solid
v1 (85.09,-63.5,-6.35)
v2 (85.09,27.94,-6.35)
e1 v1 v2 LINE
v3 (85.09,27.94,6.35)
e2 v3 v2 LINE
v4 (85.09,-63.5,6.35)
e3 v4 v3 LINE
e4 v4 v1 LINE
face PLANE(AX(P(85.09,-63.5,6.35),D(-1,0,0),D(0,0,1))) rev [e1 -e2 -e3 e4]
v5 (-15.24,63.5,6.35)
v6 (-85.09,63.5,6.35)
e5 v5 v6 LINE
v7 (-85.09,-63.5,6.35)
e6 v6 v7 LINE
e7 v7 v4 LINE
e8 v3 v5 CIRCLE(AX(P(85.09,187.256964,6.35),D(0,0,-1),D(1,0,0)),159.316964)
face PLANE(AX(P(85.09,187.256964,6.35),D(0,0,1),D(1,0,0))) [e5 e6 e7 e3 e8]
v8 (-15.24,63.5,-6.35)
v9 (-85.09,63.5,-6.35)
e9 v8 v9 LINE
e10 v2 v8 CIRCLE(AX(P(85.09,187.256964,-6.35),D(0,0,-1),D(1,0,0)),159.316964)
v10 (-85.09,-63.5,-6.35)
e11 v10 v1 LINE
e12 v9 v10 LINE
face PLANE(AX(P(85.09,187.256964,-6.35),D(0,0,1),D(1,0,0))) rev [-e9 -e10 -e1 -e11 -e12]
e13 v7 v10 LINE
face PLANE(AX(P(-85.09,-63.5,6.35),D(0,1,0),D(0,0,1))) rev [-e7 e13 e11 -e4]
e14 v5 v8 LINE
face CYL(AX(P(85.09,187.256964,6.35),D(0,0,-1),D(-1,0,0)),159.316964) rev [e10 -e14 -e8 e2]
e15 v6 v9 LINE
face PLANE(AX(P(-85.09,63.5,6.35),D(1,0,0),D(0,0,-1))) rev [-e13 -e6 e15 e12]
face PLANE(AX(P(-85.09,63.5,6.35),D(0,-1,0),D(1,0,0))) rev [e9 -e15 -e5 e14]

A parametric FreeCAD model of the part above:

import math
import FreeCAD as App
import Part
import Sketcher

V = App.Vector
Q = App.Units.Quantity

doc = App.newDocument("Part")
body = doc.addObject("PartDesign::Body", "Body")

# Sketch on XY plane
sketch1 = body.newObject("Sketcher::SketchObject", "Sketch")
sketch1.AttachmentSupport = (doc.getObject("XY_Plane"), [""])
sketch1.MapMode = "FlatFace"
sketch1.addGeometry([
    Part.LineSegment(V(-85, 64, 0), V(-85, -64, 0)),  # 0
    Part.LineSegment(V(-85, -64, 0), V(85, -64, 0)),  # 1
    Part.LineSegment(V(85, -64, 0), V(85, 28, 0)),  # 2
    Part.ArcOfCircle(Part.Circle(V(85, 187, 0), V(0, 0, 1), 159), math.radians(-129), math.radians(-90)),  # 3
    Part.LineSegment(V(-15, 64, 0), V(-85, 64, 0)),  # 4
], False)
sketch1.addConstraint([
    Sketcher.Constraint("Coincident", 0, 2, 1, 1),
    Sketcher.Constraint("Coincident", 1, 2, 2, 1),
    Sketcher.Constraint("Coincident", 2, 2, 3, 2),
    Sketcher.Constraint("Coincident", 3, 1, 4, 1),
    Sketcher.Constraint("Coincident", 4, 2, 0, 1),
    Sketcher.Constraint("Vertical", 0),
    Sketcher.Constraint("Horizontal", 1),
    Sketcher.Constraint("Vertical", 2),
    Sketcher.Constraint("Horizontal", 4),
    Sketcher.Constraint("Symmetric", 1, 2, 4, 2, -1, 1),
    Sketcher.Constraint("Vertical", 3, 3, 1, 2),
    Sketcher.Constraint("DistanceY", 0, 2, 0, 1, Q("5 in")),
    Sketcher.Constraint("DistanceX", 1, 1, 1, 2, Q("6.7 in")),
    Sketcher.Constraint("DistanceY", 2, 1, 2, 2, Q("3.6 in")),
    Sketcher.Constraint("DistanceX", 4, 2, 4, 1, Q("2.75 in")),
])
pad1 = body.newObject("PartDesign::Pad", "Pad")
pad1.Profile = sketch1
pad1.Length = Q("0.5 in")
pad1.Midplane = True

doc.recompute()
